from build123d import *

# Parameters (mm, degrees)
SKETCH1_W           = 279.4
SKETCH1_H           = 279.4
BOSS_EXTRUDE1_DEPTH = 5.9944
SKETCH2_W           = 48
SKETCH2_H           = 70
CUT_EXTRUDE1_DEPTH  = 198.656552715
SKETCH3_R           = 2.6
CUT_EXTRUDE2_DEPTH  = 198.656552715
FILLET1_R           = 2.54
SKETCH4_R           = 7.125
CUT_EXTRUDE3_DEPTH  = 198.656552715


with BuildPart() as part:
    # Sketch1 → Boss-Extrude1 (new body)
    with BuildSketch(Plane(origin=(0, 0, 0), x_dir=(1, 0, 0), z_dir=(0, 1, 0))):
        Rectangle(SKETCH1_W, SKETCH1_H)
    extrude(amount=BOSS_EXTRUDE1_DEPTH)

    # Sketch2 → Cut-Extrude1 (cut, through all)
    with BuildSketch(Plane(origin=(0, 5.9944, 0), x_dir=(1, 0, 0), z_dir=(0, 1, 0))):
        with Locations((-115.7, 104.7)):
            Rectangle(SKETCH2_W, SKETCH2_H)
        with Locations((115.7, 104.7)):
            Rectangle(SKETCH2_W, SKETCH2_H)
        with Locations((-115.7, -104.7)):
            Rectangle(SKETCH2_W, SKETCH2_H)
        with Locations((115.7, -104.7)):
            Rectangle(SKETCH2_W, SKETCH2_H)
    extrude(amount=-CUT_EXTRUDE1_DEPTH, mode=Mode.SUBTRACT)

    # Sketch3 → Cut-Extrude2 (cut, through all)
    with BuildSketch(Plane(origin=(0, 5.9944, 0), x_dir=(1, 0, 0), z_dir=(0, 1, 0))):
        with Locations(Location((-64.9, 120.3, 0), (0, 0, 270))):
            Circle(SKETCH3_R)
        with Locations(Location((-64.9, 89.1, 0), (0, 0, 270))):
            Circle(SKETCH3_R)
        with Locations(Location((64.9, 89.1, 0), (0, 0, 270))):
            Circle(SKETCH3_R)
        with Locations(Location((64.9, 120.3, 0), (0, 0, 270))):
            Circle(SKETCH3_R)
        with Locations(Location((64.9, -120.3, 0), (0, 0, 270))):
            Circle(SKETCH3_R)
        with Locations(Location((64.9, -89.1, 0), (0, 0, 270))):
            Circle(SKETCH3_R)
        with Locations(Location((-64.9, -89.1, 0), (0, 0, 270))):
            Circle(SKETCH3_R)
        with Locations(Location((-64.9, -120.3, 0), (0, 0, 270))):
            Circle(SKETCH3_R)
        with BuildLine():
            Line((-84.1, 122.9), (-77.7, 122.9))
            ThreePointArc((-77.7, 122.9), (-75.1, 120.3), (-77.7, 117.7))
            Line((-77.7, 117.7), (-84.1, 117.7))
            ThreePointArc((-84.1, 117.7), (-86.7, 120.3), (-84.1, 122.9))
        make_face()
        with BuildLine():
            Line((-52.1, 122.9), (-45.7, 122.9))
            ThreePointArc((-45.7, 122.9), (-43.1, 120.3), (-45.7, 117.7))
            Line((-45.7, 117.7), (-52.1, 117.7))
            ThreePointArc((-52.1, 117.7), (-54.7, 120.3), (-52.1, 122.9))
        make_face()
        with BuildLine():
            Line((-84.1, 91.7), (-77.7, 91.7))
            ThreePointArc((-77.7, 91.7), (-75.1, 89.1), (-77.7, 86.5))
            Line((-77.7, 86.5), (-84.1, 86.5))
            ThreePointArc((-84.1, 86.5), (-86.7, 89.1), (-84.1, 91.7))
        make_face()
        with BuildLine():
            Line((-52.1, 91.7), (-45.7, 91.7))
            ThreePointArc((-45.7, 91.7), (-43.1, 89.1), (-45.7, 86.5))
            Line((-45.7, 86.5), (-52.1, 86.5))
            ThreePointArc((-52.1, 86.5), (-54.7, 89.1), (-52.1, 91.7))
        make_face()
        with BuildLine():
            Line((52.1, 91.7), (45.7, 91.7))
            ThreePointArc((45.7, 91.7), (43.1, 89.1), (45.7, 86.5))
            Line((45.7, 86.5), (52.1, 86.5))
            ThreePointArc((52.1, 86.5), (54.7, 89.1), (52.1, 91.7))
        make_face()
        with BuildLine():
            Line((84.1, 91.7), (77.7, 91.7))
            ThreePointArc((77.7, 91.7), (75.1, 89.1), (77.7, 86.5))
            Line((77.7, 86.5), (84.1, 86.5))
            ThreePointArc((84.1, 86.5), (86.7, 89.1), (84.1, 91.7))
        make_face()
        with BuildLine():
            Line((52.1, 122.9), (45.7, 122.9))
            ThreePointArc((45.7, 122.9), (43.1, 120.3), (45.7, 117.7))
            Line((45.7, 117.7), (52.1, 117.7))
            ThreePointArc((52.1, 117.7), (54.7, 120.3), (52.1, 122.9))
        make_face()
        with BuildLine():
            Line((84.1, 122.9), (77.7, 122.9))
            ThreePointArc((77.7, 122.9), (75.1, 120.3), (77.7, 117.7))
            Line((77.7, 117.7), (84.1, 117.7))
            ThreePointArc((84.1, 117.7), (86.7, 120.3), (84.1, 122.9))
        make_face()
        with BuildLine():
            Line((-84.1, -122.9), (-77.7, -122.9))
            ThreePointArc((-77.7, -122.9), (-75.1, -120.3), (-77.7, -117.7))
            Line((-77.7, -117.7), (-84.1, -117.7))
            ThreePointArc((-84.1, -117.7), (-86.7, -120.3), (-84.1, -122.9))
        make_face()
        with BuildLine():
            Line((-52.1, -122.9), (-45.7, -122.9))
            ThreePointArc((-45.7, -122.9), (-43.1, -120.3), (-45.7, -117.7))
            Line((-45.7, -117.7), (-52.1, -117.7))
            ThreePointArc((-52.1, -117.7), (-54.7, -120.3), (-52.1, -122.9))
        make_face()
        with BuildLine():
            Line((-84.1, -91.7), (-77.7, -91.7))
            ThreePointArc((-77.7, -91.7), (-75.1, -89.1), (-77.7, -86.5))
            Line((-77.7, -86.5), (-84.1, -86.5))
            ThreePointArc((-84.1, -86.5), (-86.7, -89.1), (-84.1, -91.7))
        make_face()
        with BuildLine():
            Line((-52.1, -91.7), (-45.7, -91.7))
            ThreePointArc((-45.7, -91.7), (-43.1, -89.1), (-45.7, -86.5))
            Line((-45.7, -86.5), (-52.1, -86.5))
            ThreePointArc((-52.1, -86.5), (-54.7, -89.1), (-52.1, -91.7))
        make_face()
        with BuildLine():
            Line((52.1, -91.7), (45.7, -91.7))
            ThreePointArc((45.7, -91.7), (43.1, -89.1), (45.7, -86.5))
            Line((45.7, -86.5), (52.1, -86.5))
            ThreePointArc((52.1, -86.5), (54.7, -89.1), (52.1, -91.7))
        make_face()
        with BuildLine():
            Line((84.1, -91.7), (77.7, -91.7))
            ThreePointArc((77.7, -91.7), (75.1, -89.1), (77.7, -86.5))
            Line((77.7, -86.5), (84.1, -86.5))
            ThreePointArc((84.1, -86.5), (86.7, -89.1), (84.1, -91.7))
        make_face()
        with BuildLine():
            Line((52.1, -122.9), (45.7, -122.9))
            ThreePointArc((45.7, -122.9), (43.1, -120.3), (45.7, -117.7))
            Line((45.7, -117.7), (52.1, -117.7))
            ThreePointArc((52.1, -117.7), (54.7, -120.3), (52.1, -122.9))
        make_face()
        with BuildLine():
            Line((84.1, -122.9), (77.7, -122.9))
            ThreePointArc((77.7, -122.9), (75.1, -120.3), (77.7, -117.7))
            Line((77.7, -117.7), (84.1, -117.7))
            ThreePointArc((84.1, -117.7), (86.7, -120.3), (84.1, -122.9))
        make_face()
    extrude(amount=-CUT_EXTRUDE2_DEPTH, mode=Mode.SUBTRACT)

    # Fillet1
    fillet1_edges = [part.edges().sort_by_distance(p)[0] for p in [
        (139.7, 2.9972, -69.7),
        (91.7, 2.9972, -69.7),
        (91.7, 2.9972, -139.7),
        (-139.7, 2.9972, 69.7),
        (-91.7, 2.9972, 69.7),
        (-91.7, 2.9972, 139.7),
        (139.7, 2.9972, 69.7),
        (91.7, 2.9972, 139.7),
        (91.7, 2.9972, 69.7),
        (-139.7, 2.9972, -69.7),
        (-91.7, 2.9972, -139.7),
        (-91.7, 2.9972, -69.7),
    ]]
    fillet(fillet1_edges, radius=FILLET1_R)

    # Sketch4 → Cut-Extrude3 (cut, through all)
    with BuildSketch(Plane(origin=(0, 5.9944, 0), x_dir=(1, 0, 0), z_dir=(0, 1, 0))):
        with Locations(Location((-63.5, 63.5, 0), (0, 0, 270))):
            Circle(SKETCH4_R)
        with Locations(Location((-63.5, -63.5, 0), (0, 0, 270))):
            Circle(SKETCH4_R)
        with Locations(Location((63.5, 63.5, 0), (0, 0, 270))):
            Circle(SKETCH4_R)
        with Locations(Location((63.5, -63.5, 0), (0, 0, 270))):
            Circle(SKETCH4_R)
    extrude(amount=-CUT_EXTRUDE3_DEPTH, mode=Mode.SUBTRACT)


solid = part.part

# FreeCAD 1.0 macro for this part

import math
import FreeCAD as App
import Part
import Sketcher
from FreeCAD import Vector
Q = App.Units.Quantity


def edges_at(feature, points):
    """Names of the edges that pass closest to the given points."""
    edges = feature.Shape.Edges
    near = lambda p: min(range(len(edges)), key=lambda i: edges[i].distToShape(Part.Vertex(*p))[0])
    return sorted({f"Edge{near(p) + 1}" for p in points})


def add_polygon(sketch, points):
    """Adds a closed chain of lines whose ends are joined by coincident constraints."""
    first, n = sketch.GeometryCount, len(points)
    for a, b in zip(points, points[1:] + points[:1]):
        sketch.addGeometry(Part.LineSegment(App.Vector(*a, 0), App.Vector(*b, 0)), False)
    for i in range(n):
        sketch.addConstraint(Sketcher.Constraint("Coincident", first + i, 2, first + (i + 1) % n, 1))

doc = App.newDocument("Part")
params = doc.addObject("Spreadsheet::Sheet", "Params")
for row, (alias, value) in enumerate([
    ("sketch1_width", "279.4 mm"),
    ("pad1_length", "5.9944 mm"),
    ("sketch2_width", "48 mm"),
    ("sketch2_height", "70 mm"),
    ("sketch3_diameter", "5.2 mm"),
    ("sketch3_width", "6.4 mm"),
    ("fillet_radius", "2.54 mm"),
    ("sketch4_diameter", "14.25 mm"),
], start=1):
    params.set(f"A{row}", alias)
    params.set(f"B{row}", "=" + value)
    params.setAlias(f"B{row}", alias)

body = doc.addObject("PartDesign::Body", "Body")

sketch1 = body.newObject("Sketcher::SketchObject", "Sketch")
sketch1.AttachmentSupport = (doc.getObject("XZ_Plane"), [""])
sketch1.MapMode = "FlatFace"
add_polygon(sketch1, [(-140, -140), (-140, 140), (140, 140), (140, -140)])
sketch1.addConstraint(Sketcher.Constraint("Vertical", 0))
sketch1.addConstraint(Sketcher.Constraint("Horizontal", 1))
sketch1.addConstraint(Sketcher.Constraint("Vertical", 2))
sketch1.addConstraint(Sketcher.Constraint("Horizontal", 3))
sketch1.addConstraint(Sketcher.Constraint("Symmetric", 0, 2, 2, 2, -1, 1))
sketch1.addConstraint(Sketcher.Constraint("Equal", 3, 0))
sketch1.addConstraint(Sketcher.Constraint("DistanceX", 1, 1, 1, 2, Q("279.4 mm")))
sketch1.setExpression("Constraints[10]", "Params.sketch1_width")
pad1 = body.newObject("PartDesign::Pad", "Pad")
pad1.Profile = sketch1
pad1.setExpression("Length", "Params.pad1_length")
pad1.Reversed = True

sketch2 = body.newObject("Sketcher::SketchObject", "Sketch001")
sketch2.AttachmentSupport = (doc.getObject("XZ_Plane"), [""])
sketch2.MapMode = "FlatFace"
sketch2.AttachmentOffset = App.Placement(Vector(0, 0, -5.9944), App.Rotation())
add_polygon(sketch2, [(-140, -140), (-140, -70), (-92, -70), (-92, -140)])
add_polygon(sketch2, [(92, -140), (92, -70), (140, -70), (140, -140)])
add_polygon(sketch2, [(-140, 70), (-140, 140), (-92, 140), (-92, 70)])
add_polygon(sketch2, [(92, 70), (92, 140), (140, 140), (140, 70)])
sketch2.addConstraint(Sketcher.Constraint("Vertical", 0))
sketch2.addConstraint(Sketcher.Constraint("Horizontal", 1))
sketch2.addConstraint(Sketcher.Constraint("Vertical", 2))
sketch2.addConstraint(Sketcher.Constraint("Horizontal", 3))
sketch2.addConstraint(Sketcher.Constraint("Vertical", 4))
sketch2.addConstraint(Sketcher.Constraint("Horizontal", 5))
sketch2.addConstraint(Sketcher.Constraint("Vertical", 6))
sketch2.addConstraint(Sketcher.Constraint("Horizontal", 7))
sketch2.addConstraint(Sketcher.Constraint("Vertical", 8))
sketch2.addConstraint(Sketcher.Constraint("Horizontal", 9))
sketch2.addConstraint(Sketcher.Constraint("Vertical", 10))
sketch2.addConstraint(Sketcher.Constraint("Horizontal", 11))
sketch2.addConstraint(Sketcher.Constraint("Vertical", 12))
sketch2.addConstraint(Sketcher.Constraint("Horizontal", 13))
sketch2.addConstraint(Sketcher.Constraint("Vertical", 14))
sketch2.addConstraint(Sketcher.Constraint("Horizontal", 15))
sketch2.addConstraint(Sketcher.Constraint("Symmetric", 6, 2, 8, 2, -1, 1))
sketch2.addConstraint(Sketcher.Constraint("Symmetric", 4, 2, 10, 2, -1, 1))
sketch2.addConstraint(Sketcher.Constraint("Symmetric", 2, 2, 12, 2, -1, 1))
sketch2.addConstraint(Sketcher.Constraint("Symmetric", 0, 2, 14, 2, -1, 1))
sketch2.addConstraint(Sketcher.Constraint("Symmetric", 1, 2, 4, 2, -2))
sketch2.addConstraint(Sketcher.Constraint("Symmetric", 3, 2, 6, 2, -2))
sketch2.addConstraint(Sketcher.Constraint("DistanceX", 1, 1, 1, 2, Q("48 mm")))
sketch2.addConstraint(Sketcher.Constraint("DistanceY", 0, 1, 0, 2, Q("70 mm")))
sketch2.addConstraint(Sketcher.Constraint("DistanceX", 0, 2, -1, 1, Q("139.7 mm")))
sketch2.addConstraint(Sketcher.Constraint("DistanceY", 0, 2, -1, 1, Q("69.7 mm")))
sketch2.setExpression("Constraints[38]", "Params.sketch2_width")
sketch2.setExpression("Constraints[39]", "Params.sketch2_height")
pocket1 = body.newObject("PartDesign::Pocket", "Pocket")
pocket1.Profile = sketch2
pocket1.Type = "ThroughAll"
pocket1.Reversed = True

sketch3 = body.newObject("Sketcher::SketchObject", "Sketch002")
sketch3.AttachmentSupport = (doc.getObject("XZ_Plane"), [""])
sketch3.MapMode = "FlatFace"
sketch3.AttachmentOffset = App.Placement(Vector(0, 0, -5.9944), App.Rotation())
sketch3.addGeometry(Part.Circle(Vector(-64.9, -120.3, 0), Vector(0, 0, 1), 2.6), False)
sketch3.addGeometry(Part.Circle(Vector(-64.9, -89.1, 0), Vector(0, 0, 1), 2.6), False)
sketch3.addGeometry(Part.Circle(Vector(64.9, -89.1, 0), Vector(0, 0, 1), 2.6), False)
sketch3.addGeometry(Part.Circle(Vector(64.9, -120.3, 0), Vector(0, 0, 1), 2.6), False)
sketch3.addGeometry(Part.Circle(Vector(64.9, 120.3, 0), Vector(0, 0, 1), 2.6), False)
sketch3.addGeometry(Part.Circle(Vector(64.9, 89.1, 0), Vector(0, 0, 1), 2.6), False)
sketch3.addGeometry(Part.Circle(Vector(-64.9, 89.1, 0), Vector(0, 0, 1), 2.6), False)
sketch3.addGeometry(Part.Circle(Vector(-64.9, 120.3, 0), Vector(0, 0, 1), 2.6), False)
sketch3.addGeometry(Part.LineSegment(Vector(-77.7, -122.9, 0), Vector(-84.1, -122.9, 0)), False)
sketch3.addGeometry(Part.ArcOfCircle(Part.Circle(Vector(-84.1, -120.3, 0), Vector(0, 0, 1), 2.6), math.radians(90), math.radians(270)), False)
sketch3.addGeometry(Part.LineSegment(Vector(-84.1, -117.7, 0), Vector(-77.7, -117.7, 0)), False)
sketch3.addGeometry(Part.ArcOfCircle(Part.Circle(Vector(-77.7, -120.3, 0), Vector(0, 0, 1), 2.6), math.radians(-90), math.radians(90)), False)
sketch3.addGeometry(Part.LineSegment(Vector(-45.7, -122.9, 0), Vector(-52.1, -122.9, 0)), False)
sketch3.addGeometry(Part.ArcOfCircle(Part.Circle(Vector(-52.1, -120.3, 0), Vector(0, 0, 1), 2.6), math.radians(90), math.radians(270)), False)
sketch3.addGeometry(Part.LineSegment(Vector(-52.1, -117.7, 0), Vector(-45.7, -117.7, 0)), False)
sketch3.addGeometry(Part.ArcOfCircle(Part.Circle(Vector(-45.7, -120.3, 0), Vector(0, 0, 1), 2.6), math.radians(-90), math.radians(90)), False)
sketch3.addGeometry(Part.LineSegment(Vector(-77.7, -91.7, 0), Vector(-84.1, -91.7, 0)), False)
sketch3.addGeometry(Part.ArcOfCircle(Part.Circle(Vector(-84.1, -89.1, 0), Vector(0, 0, 1), 2.6), math.radians(90), math.radians(270)), False)
sketch3.addGeometry(Part.LineSegment(Vector(-84.1, -86.5, 0), Vector(-77.7, -86.5, 0)), False)
sketch3.addGeometry(Part.ArcOfCircle(Part.Circle(Vector(-77.7, -89.1, 0), Vector(0, 0, 1), 2.6), math.radians(-90), math.radians(90)), False)
sketch3.addGeometry(Part.LineSegment(Vector(-45.7, -91.7, 0), Vector(-52.1, -91.7, 0)), False)
sketch3.addGeometry(Part.ArcOfCircle(Part.Circle(Vector(-52.1, -89.1, 0), Vector(0, 0, 1), 2.6), math.radians(90), math.radians(270)), False)
sketch3.addGeometry(Part.LineSegment(Vector(-52.1, -86.5, 0), Vector(-45.7, -86.5, 0)), False)
sketch3.addGeometry(Part.ArcOfCircle(Part.Circle(Vector(-45.7, -89.1, 0), Vector(0, 0, 1), 2.6), math.radians(-90), math.radians(90)), False)
sketch3.addGeometry(Part.LineSegment(Vector(52.1, -91.7, 0), Vector(45.7, -91.7, 0)), False)
sketch3.addGeometry(Part.ArcOfCircle(Part.Circle(Vector(45.7, -89.1, 0), Vector(0, 0, 1), 2.6), math.radians(90), math.radians(270)), False)
sketch3.addGeometry(Part.LineSegment(Vector(45.7, -86.5, 0), Vector(52.1, -86.5, 0)), False)
sketch3.addGeometry(Part.ArcOfCircle(Part.Circle(Vector(52.1, -89.1, 0), Vector(0, 0, 1), 2.6), math.radians(-90), math.radians(90)), False)
sketch3.addGeometry(Part.LineSegment(Vector(84.1, -91.7, 0), Vector(77.7, -91.7, 0)), False)
sketch3.addGeometry(Part.ArcOfCircle(Part.Circle(Vector(77.7, -89.1, 0), Vector(0, 0, 1), 2.6), math.radians(90), math.radians(270)), False)
sketch3.addGeometry(Part.LineSegment(Vector(77.7, -86.5, 0), Vector(84.1, -86.5, 0)), False)
sketch3.addGeometry(Part.ArcOfCircle(Part.Circle(Vector(84.1, -89.1, 0), Vector(0, 0, 1), 2.6), math.radians(-90), math.radians(90)), False)
sketch3.addGeometry(Part.LineSegment(Vector(52.1, -122.9, 0), Vector(45.7, -122.9, 0)), False)
sketch3.addGeometry(Part.ArcOfCircle(Part.Circle(Vector(45.7, -120.3, 0), Vector(0, 0, 1), 2.6), math.radians(90), math.radians(270)), False)
sketch3.addGeometry(Part.LineSegment(Vector(45.7, -117.7, 0), Vector(52.1, -117.7, 0)), False)
sketch3.addGeometry(Part.ArcOfCircle(Part.Circle(Vector(52.1, -120.3, 0), Vector(0, 0, 1), 2.6), math.radians(-90), math.radians(90)), False)
sketch3.addGeometry(Part.LineSegment(Vector(84.1, -122.9, 0), Vector(77.7, -122.9, 0)), False)
sketch3.addGeometry(Part.ArcOfCircle(Part.Circle(Vector(77.7, -120.3, 0), Vector(0, 0, 1), 2.6), math.radians(90), math.radians(270)), False)
sketch3.addGeometry(Part.LineSegment(Vector(77.7, -117.7, 0), Vector(84.1, -117.7, 0)), False)
sketch3.addGeometry(Part.ArcOfCircle(Part.Circle(Vector(84.1, -120.3, 0), Vector(0, 0, 1), 2.6), math.radians(-90), math.radians(90)), False)
sketch3.addGeometry(Part.LineSegment(Vector(-84.1, 122.9, 0), Vector(-77.7, 122.9, 0)), False)
sketch3.addGeometry(Part.ArcOfCircle(Part.Circle(Vector(-77.7, 120.3, 0), Vector(0, 0, 1), 2.6), math.radians(-90), math.radians(90)), False)
sketch3.addGeometry(Part.LineSegment(Vector(-77.7, 117.7, 0), Vector(-84.1, 117.7, 0)), False)
sketch3.addGeometry(Part.ArcOfCircle(Part.Circle(Vector(-84.1, 120.3, 0), Vector(0, 0, 1), 2.6), math.radians(90), math.radians(270)), False)
sketch3.addGeometry(Part.LineSegment(Vector(-52.1, 122.9, 0), Vector(-45.7, 122.9, 0)), False)
sketch3.addGeometry(Part.ArcOfCircle(Part.Circle(Vector(-45.7, 120.3, 0), Vector(0, 0, 1), 2.6), math.radians(-90), math.radians(90)), False)
sketch3.addGeometry(Part.LineSegment(Vector(-45.7, 117.7, 0), Vector(-52.1, 117.7, 0)), False)
sketch3.addGeometry(Part.ArcOfCircle(Part.Circle(Vector(-52.1, 120.3, 0), Vector(0, 0, 1), 2.6), math.radians(90), math.radians(270)), False)
sketch3.addGeometry(Part.LineSegment(Vector(-84.1, 91.7, 0), Vector(-77.7, 91.7, 0)), False)
sketch3.addGeometry(Part.ArcOfCircle(Part.Circle(Vector(-77.7, 89.1, 0), Vector(0, 0, 1), 2.6), math.radians(-90), math.radians(90)), False)
sketch3.addGeometry(Part.LineSegment(Vector(-77.7, 86.5, 0), Vector(-84.1, 86.5, 0)), False)
sketch3.addGeometry(Part.ArcOfCircle(Part.Circle(Vector(-84.1, 89.1, 0), Vector(0, 0, 1), 2.6), math.radians(90), math.radians(270)), False)
sketch3.addGeometry(Part.LineSegment(Vector(-52.1, 91.7, 0), Vector(-45.7, 91.7, 0)), False)
sketch3.addGeometry(Part.ArcOfCircle(Part.Circle(Vector(-45.7, 89.1, 0), Vector(0, 0, 1), 2.6), math.radians(-90), math.radians(90)), False)
sketch3.addGeometry(Part.LineSegment(Vector(-45.7, 86.5, 0), Vector(-52.1, 86.5, 0)), False)
sketch3.addGeometry(Part.ArcOfCircle(Part.Circle(Vector(-52.1, 89.1, 0), Vector(0, 0, 1), 2.6), math.radians(90), math.radians(270)), False)
sketch3.addGeometry(Part.LineSegment(Vector(45.7, 91.7, 0), Vector(52.1, 91.7, 0)), False)
sketch3.addGeometry(Part.ArcOfCircle(Part.Circle(Vector(52.1, 89.1, 0), Vector(0, 0, 1), 2.6), math.radians(-90), math.radians(90)), False)
sketch3.addGeometry(Part.LineSegment(Vector(52.1, 86.5, 0), Vector(45.7, 86.5, 0)), False)
sketch3.addGeometry(Part.ArcOfCircle(Part.Circle(Vector(45.7, 89.1, 0), Vector(0, 0, 1), 2.6), math.radians(90), math.radians(270)), False)
sketch3.addGeometry(Part.LineSegment(Vector(77.7, 91.7, 0), Vector(84.1, 91.7, 0)), False)
sketch3.addGeometry(Part.ArcOfCircle(Part.Circle(Vector(84.1, 89.1, 0), Vector(0, 0, 1), 2.6), math.radians(-90), math.radians(90)), False)
sketch3.addGeometry(Part.LineSegment(Vector(84.1, 86.5, 0), Vector(77.7, 86.5, 0)), False)
sketch3.addGeometry(Part.ArcOfCircle(Part.Circle(Vector(77.7, 89.1, 0), Vector(0, 0, 1), 2.6), math.radians(90), math.radians(270)), False)
sketch3.addGeometry(Part.LineSegment(Vector(45.7, 122.9, 0), Vector(52.1, 122.9, 0)), False)
sketch3.addGeometry(Part.ArcOfCircle(Part.Circle(Vector(52.1, 120.3, 0), Vector(0, 0, 1), 2.6), math.radians(-90), math.radians(90)), False)
sketch3.addGeometry(Part.LineSegment(Vector(52.1, 117.7, 0), Vector(45.7, 117.7, 0)), False)
sketch3.addGeometry(Part.ArcOfCircle(Part.Circle(Vector(45.7, 120.3, 0), Vector(0, 0, 1), 2.6), math.radians(90), math.radians(270)), False)
sketch3.addGeometry(Part.LineSegment(Vector(77.7, 122.9, 0), Vector(84.1, 122.9, 0)), False)
sketch3.addGeometry(Part.ArcOfCircle(Part.Circle(Vector(84.1, 120.3, 0), Vector(0, 0, 1), 2.6), math.radians(-90), math.radians(90)), False)
sketch3.addGeometry(Part.LineSegment(Vector(84.1, 117.7, 0), Vector(77.7, 117.7, 0)), False)
sketch3.addGeometry(Part.ArcOfCircle(Part.Circle(Vector(77.7, 120.3, 0), Vector(0, 0, 1), 2.6), math.radians(90), math.radians(270)), False)
sketch3.addConstraint(Sketcher.Constraint("Tangent", 8, 2, 9, 2))
sketch3.addConstraint(Sketcher.Constraint("Tangent", 9, 1, 10, 1))
sketch3.addConstraint(Sketcher.Constraint("Tangent", 10, 2, 11, 2))
sketch3.addConstraint(Sketcher.Constraint("Tangent", 11, 1, 8, 1))
sketch3.addConstraint(Sketcher.Constraint("Tangent", 12, 2, 13, 2))
sketch3.addConstraint(Sketcher.Constraint("Tangent", 13, 1, 14, 1))
sketch3.addConstraint(Sketcher.Constraint("Tangent", 14, 2, 15, 2))
sketch3.addConstraint(Sketcher.Constraint("Tangent", 15, 1, 12, 1))
sketch3.addConstraint(Sketcher.Constraint("Tangent", 16, 2, 17, 2))
sketch3.addConstraint(Sketcher.Constraint("Tangent", 17, 1, 18, 1))
sketch3.addConstraint(Sketcher.Constraint("Tangent", 18, 2, 19, 2))
sketch3.addConstraint(Sketcher.Constraint("Tangent", 19, 1, 16, 1))
sketch3.addConstraint(Sketcher.Constraint("Tangent", 20, 2, 21, 2))
sketch3.addConstraint(Sketcher.Constraint("Tangent", 21, 1, 22, 1))
sketch3.addConstraint(Sketcher.Constraint("Tangent", 22, 2, 23, 2))
sketch3.addConstraint(Sketcher.Constraint("Tangent", 23, 1, 20, 1))
sketch3.addConstraint(Sketcher.Constraint("Tangent", 24, 2, 25, 2))
sketch3.addConstraint(Sketcher.Constraint("Tangent", 25, 1, 26, 1))
sketch3.addConstraint(Sketcher.Constraint("Tangent", 26, 2, 27, 2))
sketch3.addConstraint(Sketcher.Constraint("Tangent", 27, 1, 24, 1))
sketch3.addConstraint(Sketcher.Constraint("Tangent", 28, 2, 29, 2))
sketch3.addConstraint(Sketcher.Constraint("Tangent", 29, 1, 30, 1))
sketch3.addConstraint(Sketcher.Constraint("Tangent", 30, 2, 31, 2))
sketch3.addConstraint(Sketcher.Constraint("Tangent", 31, 1, 28, 1))
sketch3.addConstraint(Sketcher.Constraint("Tangent", 32, 2, 33, 2))
sketch3.addConstraint(Sketcher.Constraint("Tangent", 33, 1, 34, 1))
sketch3.addConstraint(Sketcher.Constraint("Tangent", 34, 2, 35, 2))
sketch3.addConstraint(Sketcher.Constraint("Tangent", 35, 1, 32, 1))
sketch3.addConstraint(Sketcher.Constraint("Tangent", 36, 2, 37, 2))
sketch3.addConstraint(Sketcher.Constraint("Tangent", 37, 1, 38, 1))
sketch3.addConstraint(Sketcher.Constraint("Tangent", 38, 2, 39, 2))
sketch3.addConstraint(Sketcher.Constraint("Tangent", 39, 1, 36, 1))
sketch3.addConstraint(Sketcher.Constraint("Tangent", 40, 2, 41, 2))
sketch3.addConstraint(Sketcher.Constraint("Tangent", 41, 1, 42, 1))
sketch3.addConstraint(Sketcher.Constraint("Tangent", 42, 2, 43, 2))
sketch3.addConstraint(Sketcher.Constraint("Tangent", 43, 1, 40, 1))
sketch3.addConstraint(Sketcher.Constraint("Tangent", 44, 2, 45, 2))
sketch3.addConstraint(Sketcher.Constraint("Tangent", 45, 1, 46, 1))
sketch3.addConstraint(Sketcher.Constraint("Tangent", 46, 2, 47, 2))
sketch3.addConstraint(Sketcher.Constraint("Tangent", 47, 1, 44, 1))
sketch3.addConstraint(Sketcher.Constraint("Tangent", 48, 2, 49, 2))
sketch3.addConstraint(Sketcher.Constraint("Tangent", 49, 1, 50, 1))
sketch3.addConstraint(Sketcher.Constraint("Tangent", 50, 2, 51, 2))
sketch3.addConstraint(Sketcher.Constraint("Tangent", 51, 1, 48, 1))
sketch3.addConstraint(Sketcher.Constraint("Tangent", 52, 2, 53, 2))
sketch3.addConstraint(Sketcher.Constraint("Tangent", 53, 1, 54, 1))
sketch3.addConstraint(Sketcher.Constraint("Tangent", 54, 2, 55, 2))
sketch3.addConstraint(Sketcher.Constraint("Tangent", 55, 1, 52, 1))
sketch3.addConstraint(Sketcher.Constraint("Tangent", 56, 2, 57, 2))
sketch3.addConstraint(Sketcher.Constraint("Tangent", 57, 1, 58, 1))
sketch3.addConstraint(Sketcher.Constraint("Tangent", 58, 2, 59, 2))
sketch3.addConstraint(Sketcher.Constraint("Tangent", 59, 1, 56, 1))
sketch3.addConstraint(Sketcher.Constraint("Tangent", 60, 2, 61, 2))
sketch3.addConstraint(Sketcher.Constraint("Tangent", 61, 1, 62, 1))
sketch3.addConstraint(Sketcher.Constraint("Tangent", 62, 2, 63, 2))
sketch3.addConstraint(Sketcher.Constraint("Tangent", 63, 1, 60, 1))
sketch3.addConstraint(Sketcher.Constraint("Tangent", 64, 2, 65, 2))
sketch3.addConstraint(Sketcher.Constraint("Tangent", 65, 1, 66, 1))
sketch3.addConstraint(Sketcher.Constraint("Tangent", 66, 2, 67, 2))
sketch3.addConstraint(Sketcher.Constraint("Tangent", 67, 1, 64, 1))
sketch3.addConstraint(Sketcher.Constraint("Tangent", 68, 2, 69, 2))
sketch3.addConstraint(Sketcher.Constraint("Tangent", 69, 1, 70, 1))
sketch3.addConstraint(Sketcher.Constraint("Tangent", 70, 2, 71, 2))
sketch3.addConstraint(Sketcher.Constraint("Tangent", 71, 1, 68, 1))
sketch3.addConstraint(Sketcher.Constraint("Horizontal", 8))
sketch3.addConstraint(Sketcher.Constraint("Horizontal", 10))
sketch3.addConstraint(Sketcher.Constraint("Horizontal", 12))
sketch3.addConstraint(Sketcher.Constraint("Horizontal", 14))
sketch3.addConstraint(Sketcher.Constraint("Horizontal", 16))
sketch3.addConstraint(Sketcher.Constraint("Horizontal", 18))
sketch3.addConstraint(Sketcher.Constraint("Horizontal", 20))
sketch3.addConstraint(Sketcher.Constraint("Horizontal", 22))
sketch3.addConstraint(Sketcher.Constraint("Horizontal", 24))
sketch3.addConstraint(Sketcher.Constraint("Horizontal", 26))
sketch3.addConstraint(Sketcher.Constraint("Horizontal", 28))
sketch3.addConstraint(Sketcher.Constraint("Horizontal", 30))
sketch3.addConstraint(Sketcher.Constraint("Horizontal", 32))
sketch3.addConstraint(Sketcher.Constraint("Horizontal", 34))
sketch3.addConstraint(Sketcher.Constraint("Horizontal", 36))
sketch3.addConstraint(Sketcher.Constraint("Horizontal", 38))
sketch3.addConstraint(Sketcher.Constraint("Horizontal", 40))
sketch3.addConstraint(Sketcher.Constraint("Horizontal", 42))
sketch3.addConstraint(Sketcher.Constraint("Horizontal", 44))
sketch3.addConstraint(Sketcher.Constraint("Horizontal", 46))
sketch3.addConstraint(Sketcher.Constraint("Horizontal", 48))
sketch3.addConstraint(Sketcher.Constraint("Horizontal", 50))
sketch3.addConstraint(Sketcher.Constraint("Horizontal", 52))
sketch3.addConstraint(Sketcher.Constraint("Horizontal", 54))
sketch3.addConstraint(Sketcher.Constraint("Horizontal", 56))
sketch3.addConstraint(Sketcher.Constraint("Horizontal", 58))
sketch3.addConstraint(Sketcher.Constraint("Horizontal", 60))
sketch3.addConstraint(Sketcher.Constraint("Horizontal", 62))
sketch3.addConstraint(Sketcher.Constraint("Horizontal", 64))
sketch3.addConstraint(Sketcher.Constraint("Horizontal", 66))
sketch3.addConstraint(Sketcher.Constraint("Horizontal", 68))
sketch3.addConstraint(Sketcher.Constraint("Horizontal", 70))
sketch3.addConstraint(Sketcher.Constraint("Equal", 0, 1))
sketch3.addConstraint(Sketcher.Constraint("Equal", 1, 2))
sketch3.addConstraint(Sketcher.Constraint("Equal", 2, 3))
sketch3.addConstraint(Sketcher.Constraint("Equal", 3, 4))
sketch3.addConstraint(Sketcher.Constraint("Equal", 4, 5))
sketch3.addConstraint(Sketcher.Constraint("Equal", 5, 6))
sketch3.addConstraint(Sketcher.Constraint("Equal", 6, 7))
sketch3.addConstraint(Sketcher.Constraint("Equal", 7, 9))
sketch3.addConstraint(Sketcher.Constraint("Equal", 11, 13))
sketch3.addConstraint(Sketcher.Constraint("Equal", 15, 17))
sketch3.addConstraint(Sketcher.Constraint("Equal", 19, 21))
sketch3.addConstraint(Sketcher.Constraint("Equal", 23, 25))
sketch3.addConstraint(Sketcher.Constraint("Equal", 27, 29))
sketch3.addConstraint(Sketcher.Constraint("Equal", 31, 33))
sketch3.addConstraint(Sketcher.Constraint("Equal", 35, 37))
sketch3.addConstraint(Sketcher.Constraint("Equal", 39, 41))
sketch3.addConstraint(Sketcher.Constraint("Equal", 43, 45))
sketch3.addConstraint(Sketcher.Constraint("Equal", 47, 49))
sketch3.addConstraint(Sketcher.Constraint("Equal", 51, 53))
sketch3.addConstraint(Sketcher.Constraint("Equal", 55, 57))
sketch3.addConstraint(Sketcher.Constraint("Equal", 59, 61))
sketch3.addConstraint(Sketcher.Constraint("Equal", 63, 65))
sketch3.addConstraint(Sketcher.Constraint("Equal", 67, 69))
sketch3.addConstraint(Sketcher.Constraint("Symmetric", 0, 3, 4, 3, -1, 1))
sketch3.addConstraint(Sketcher.Constraint("Symmetric", 1, 3, 5, 3, -1, 1))
sketch3.addConstraint(Sketcher.Constraint("Symmetric", 2, 3, 6, 3, -1, 1))
sketch3.addConstraint(Sketcher.Constraint("Symmetric", 3, 3, 7, 3, -1, 1))
sketch3.addConstraint(Sketcher.Constraint("Symmetric", 37, 3, 41, 3, -1, 1))
sketch3.addConstraint(Sketcher.Constraint("Symmetric", 33, 3, 45, 3, -1, 1))
sketch3.addConstraint(Sketcher.Constraint("Symmetric", 29, 3, 49, 3, -1, 1))
sketch3.addConstraint(Sketcher.Constraint("Symmetric", 25, 3, 53, 3, -1, 1))
sketch3.addConstraint(Sketcher.Constraint("Symmetric", 21, 3, 57, 3, -1, 1))
sketch3.addConstraint(Sketcher.Constraint("Symmetric", 17, 3, 61, 3, -1, 1))
sketch3.addConstraint(Sketcher.Constraint("Symmetric", 13, 3, 65, 3, -1, 1))
sketch3.addConstraint(Sketcher.Constraint("Symmetric", 9, 3, 69, 3, -1, 1))
sketch3.addConstraint(Sketcher.Constraint("Symmetric", 1, 3, 2, 3, -2))
sketch3.addConstraint(Sketcher.Constraint("Symmetric", 0, 3, 3, 3, -2))
sketch3.addConstraint(Sketcher.Constraint("Symmetric", 23, 3, 25, 3, -2))
sketch3.addConstraint(Sketcher.Constraint("Symmetric", 19, 3, 29, 3, -2))
sketch3.addConstraint(Sketcher.Constraint("Symmetric", 15, 3, 33, 3, -2))
sketch3.addConstraint(Sketcher.Constraint("Symmetric", 11, 3, 37, 3, -2))
sketch3.addConstraint(Sketcher.Constraint("Horizontal", 3, 3, 9, 3))
sketch3.addConstraint(Sketcher.Constraint("Horizontal", 11, 3, 13, 3))
sketch3.addConstraint(Sketcher.Constraint("Horizontal", 2, 3, 17, 3))
sketch3.addConstraint(Sketcher.Constraint("Horizontal", 19, 3, 21, 3))
sketch3.addConstraint(Sketcher.Constraint("Vertical", 0, 3, 1, 3))
sketch3.addConstraint(Sketcher.Constraint("Vertical", 9, 3, 17, 3))
sketch3.addConstraint(Sketcher.Constraint("Vertical", 11, 3, 19, 3))
sketch3.addConstraint(Sketcher.Constraint("Vertical", 13, 3, 21, 3))
sketch3.addConstraint(Sketcher.Constraint("Vertical", 15, 3, 23, 3))
sketch3.addConstraint(Sketcher.Constraint("Vertical", 27, 3, 35, 3))
sketch3.addConstraint(Sketcher.Constraint("Vertical", 31, 3, 39, 3))
sketch3.addConstraint(Sketcher.Constraint("Vertical", 17, 3, 43, 3))
sketch3.addConstraint(Sketcher.Constraint("Vertical", 21, 3, 47, 3))
sketch3.addConstraint(Sketcher.Constraint("Vertical", 43, 3, 51, 3))
sketch3.addConstraint(Sketcher.Constraint("Vertical", 47, 3, 55, 3))
sketch3.addConstraint(Sketcher.Constraint("Vertical", 35, 3, 57, 3))
sketch3.addConstraint(Sketcher.Constraint("Vertical", 33, 3, 59, 3))
sketch3.addConstraint(Sketcher.Constraint("Vertical", 39, 3, 61, 3))
sketch3.addConstraint(Sketcher.Constraint("Vertical", 37, 3, 63, 3))
sketch3.addConstraint(Sketcher.Constraint("Vertical", 59, 3, 67, 3))
sketch3.addConstraint(Sketcher.Constraint("Vertical", 63, 3, 71, 3))
sketch3.addConstraint(Sketcher.Constraint("Equal", 10, 12))
sketch3.addConstraint(Sketcher.Constraint("Diameter", 0, Q("5.2 mm")))
sketch3.addConstraint(Sketcher.Constraint("DistanceX", 8, 2, 8, 1, Q("6.4 mm")))
sketch3.addConstraint(Sketcher.Constraint("DistanceX", 0, 3, -1, 1, Q("64.9 mm")))
sketch3.addConstraint(Sketcher.Constraint("DistanceY", 0, 3, -1, 1, Q("120.3 mm")))
sketch3.addConstraint(Sketcher.Constraint("DistanceY", 1, 3, -1, 1, Q("89.1 mm")))
sketch3.addConstraint(Sketcher.Constraint("DistanceX", 9, 3, -1, 1, Q("84.1 mm")))
sketch3.addConstraint(Sketcher.Constraint("DistanceX", 13, 3, -1, 1, Q("52.1 mm")))
sketch3.setExpression("Constraints[159]", "Params.sketch3_diameter")
sketch3.setExpression("Constraints[160]", "Params.sketch3_width")
pocket2 = body.newObject("PartDesign::Pocket", "Pocket001")
pocket2.Profile = sketch3
pocket2.Type = "ThroughAll"
pocket2.Reversed = True
doc.recompute()

fillet = body.newObject("PartDesign::Fillet", "Fillet")
fillet.Base = (pocket2, edges_at(pocket2, [
    (139.7, 2.997, -69.7),
    (91.7, 2.997, -69.7),
    (91.7, 2.997, -139.7),
    (-139.7, 2.997, 69.7),
    (-91.7, 2.997, 69.7),
    (-91.7, 2.997, 139.7),
    (139.7, 2.997, 69.7),
    (91.7, 2.997, 139.7),
    (91.7, 2.997, 69.7),
    (-139.7, 2.997, -69.7),
    (-91.7, 2.997, -139.7),
    (-91.7, 2.997, -69.7),
]))
fillet.setExpression("Radius", "Params.fillet_radius")

sketch4 = body.newObject("Sketcher::SketchObject", "Sketch003")
sketch4.AttachmentSupport = (doc.getObject("XZ_Plane"), [""])
sketch4.MapMode = "FlatFace"
sketch4.AttachmentOffset = App.Placement(Vector(0, 0, -5.9944), App.Rotation())
sketch4.addGeometry(Part.Circle(Vector(-64, -64, 0), Vector(0, 0, 1), 7), False)
sketch4.addGeometry(Part.Circle(Vector(-64, 64, 0), Vector(0, 0, 1), 7), False)
sketch4.addGeometry(Part.Circle(Vector(64, -64, 0), Vector(0, 0, 1), 7), False)
sketch4.addGeometry(Part.Circle(Vector(64, 64, 0), Vector(0, 0, 1), 7), False)
sketch4.addConstraint(Sketcher.Constraint("Equal", 0, 1))
sketch4.addConstraint(Sketcher.Constraint("Equal", 1, 2))
sketch4.addConstraint(Sketcher.Constraint("Equal", 2, 3))
sketch4.addConstraint(Sketcher.Constraint("Symmetric", 1, 3, 2, 3, -1, 1))
sketch4.addConstraint(Sketcher.Constraint("Symmetric", 0, 3, 3, 3, -1, 1))
sketch4.addConstraint(Sketcher.Constraint("Symmetric", 0, 3, 2, 3, -2))
sketch4.addConstraint(Sketcher.Constraint("Diameter", 0, Q("14.25 mm")))
sketch4.addConstraint(Sketcher.Constraint("DistanceY", 0, 3, 1, 3, Q("127 mm")))
sketch4.addConstraint(Sketcher.Constraint("DistanceX", 0, 3, 2, 3, Q("127 mm")))
sketch4.setExpression("Constraints[6]", "Params.sketch4_diameter")
pocket3 = body.newObject("PartDesign::Pocket", "Pocket002")
pocket3.Profile = sketch4
pocket3.Type = "ThroughAll"
pocket3.Reversed = True

doc.recompute()
